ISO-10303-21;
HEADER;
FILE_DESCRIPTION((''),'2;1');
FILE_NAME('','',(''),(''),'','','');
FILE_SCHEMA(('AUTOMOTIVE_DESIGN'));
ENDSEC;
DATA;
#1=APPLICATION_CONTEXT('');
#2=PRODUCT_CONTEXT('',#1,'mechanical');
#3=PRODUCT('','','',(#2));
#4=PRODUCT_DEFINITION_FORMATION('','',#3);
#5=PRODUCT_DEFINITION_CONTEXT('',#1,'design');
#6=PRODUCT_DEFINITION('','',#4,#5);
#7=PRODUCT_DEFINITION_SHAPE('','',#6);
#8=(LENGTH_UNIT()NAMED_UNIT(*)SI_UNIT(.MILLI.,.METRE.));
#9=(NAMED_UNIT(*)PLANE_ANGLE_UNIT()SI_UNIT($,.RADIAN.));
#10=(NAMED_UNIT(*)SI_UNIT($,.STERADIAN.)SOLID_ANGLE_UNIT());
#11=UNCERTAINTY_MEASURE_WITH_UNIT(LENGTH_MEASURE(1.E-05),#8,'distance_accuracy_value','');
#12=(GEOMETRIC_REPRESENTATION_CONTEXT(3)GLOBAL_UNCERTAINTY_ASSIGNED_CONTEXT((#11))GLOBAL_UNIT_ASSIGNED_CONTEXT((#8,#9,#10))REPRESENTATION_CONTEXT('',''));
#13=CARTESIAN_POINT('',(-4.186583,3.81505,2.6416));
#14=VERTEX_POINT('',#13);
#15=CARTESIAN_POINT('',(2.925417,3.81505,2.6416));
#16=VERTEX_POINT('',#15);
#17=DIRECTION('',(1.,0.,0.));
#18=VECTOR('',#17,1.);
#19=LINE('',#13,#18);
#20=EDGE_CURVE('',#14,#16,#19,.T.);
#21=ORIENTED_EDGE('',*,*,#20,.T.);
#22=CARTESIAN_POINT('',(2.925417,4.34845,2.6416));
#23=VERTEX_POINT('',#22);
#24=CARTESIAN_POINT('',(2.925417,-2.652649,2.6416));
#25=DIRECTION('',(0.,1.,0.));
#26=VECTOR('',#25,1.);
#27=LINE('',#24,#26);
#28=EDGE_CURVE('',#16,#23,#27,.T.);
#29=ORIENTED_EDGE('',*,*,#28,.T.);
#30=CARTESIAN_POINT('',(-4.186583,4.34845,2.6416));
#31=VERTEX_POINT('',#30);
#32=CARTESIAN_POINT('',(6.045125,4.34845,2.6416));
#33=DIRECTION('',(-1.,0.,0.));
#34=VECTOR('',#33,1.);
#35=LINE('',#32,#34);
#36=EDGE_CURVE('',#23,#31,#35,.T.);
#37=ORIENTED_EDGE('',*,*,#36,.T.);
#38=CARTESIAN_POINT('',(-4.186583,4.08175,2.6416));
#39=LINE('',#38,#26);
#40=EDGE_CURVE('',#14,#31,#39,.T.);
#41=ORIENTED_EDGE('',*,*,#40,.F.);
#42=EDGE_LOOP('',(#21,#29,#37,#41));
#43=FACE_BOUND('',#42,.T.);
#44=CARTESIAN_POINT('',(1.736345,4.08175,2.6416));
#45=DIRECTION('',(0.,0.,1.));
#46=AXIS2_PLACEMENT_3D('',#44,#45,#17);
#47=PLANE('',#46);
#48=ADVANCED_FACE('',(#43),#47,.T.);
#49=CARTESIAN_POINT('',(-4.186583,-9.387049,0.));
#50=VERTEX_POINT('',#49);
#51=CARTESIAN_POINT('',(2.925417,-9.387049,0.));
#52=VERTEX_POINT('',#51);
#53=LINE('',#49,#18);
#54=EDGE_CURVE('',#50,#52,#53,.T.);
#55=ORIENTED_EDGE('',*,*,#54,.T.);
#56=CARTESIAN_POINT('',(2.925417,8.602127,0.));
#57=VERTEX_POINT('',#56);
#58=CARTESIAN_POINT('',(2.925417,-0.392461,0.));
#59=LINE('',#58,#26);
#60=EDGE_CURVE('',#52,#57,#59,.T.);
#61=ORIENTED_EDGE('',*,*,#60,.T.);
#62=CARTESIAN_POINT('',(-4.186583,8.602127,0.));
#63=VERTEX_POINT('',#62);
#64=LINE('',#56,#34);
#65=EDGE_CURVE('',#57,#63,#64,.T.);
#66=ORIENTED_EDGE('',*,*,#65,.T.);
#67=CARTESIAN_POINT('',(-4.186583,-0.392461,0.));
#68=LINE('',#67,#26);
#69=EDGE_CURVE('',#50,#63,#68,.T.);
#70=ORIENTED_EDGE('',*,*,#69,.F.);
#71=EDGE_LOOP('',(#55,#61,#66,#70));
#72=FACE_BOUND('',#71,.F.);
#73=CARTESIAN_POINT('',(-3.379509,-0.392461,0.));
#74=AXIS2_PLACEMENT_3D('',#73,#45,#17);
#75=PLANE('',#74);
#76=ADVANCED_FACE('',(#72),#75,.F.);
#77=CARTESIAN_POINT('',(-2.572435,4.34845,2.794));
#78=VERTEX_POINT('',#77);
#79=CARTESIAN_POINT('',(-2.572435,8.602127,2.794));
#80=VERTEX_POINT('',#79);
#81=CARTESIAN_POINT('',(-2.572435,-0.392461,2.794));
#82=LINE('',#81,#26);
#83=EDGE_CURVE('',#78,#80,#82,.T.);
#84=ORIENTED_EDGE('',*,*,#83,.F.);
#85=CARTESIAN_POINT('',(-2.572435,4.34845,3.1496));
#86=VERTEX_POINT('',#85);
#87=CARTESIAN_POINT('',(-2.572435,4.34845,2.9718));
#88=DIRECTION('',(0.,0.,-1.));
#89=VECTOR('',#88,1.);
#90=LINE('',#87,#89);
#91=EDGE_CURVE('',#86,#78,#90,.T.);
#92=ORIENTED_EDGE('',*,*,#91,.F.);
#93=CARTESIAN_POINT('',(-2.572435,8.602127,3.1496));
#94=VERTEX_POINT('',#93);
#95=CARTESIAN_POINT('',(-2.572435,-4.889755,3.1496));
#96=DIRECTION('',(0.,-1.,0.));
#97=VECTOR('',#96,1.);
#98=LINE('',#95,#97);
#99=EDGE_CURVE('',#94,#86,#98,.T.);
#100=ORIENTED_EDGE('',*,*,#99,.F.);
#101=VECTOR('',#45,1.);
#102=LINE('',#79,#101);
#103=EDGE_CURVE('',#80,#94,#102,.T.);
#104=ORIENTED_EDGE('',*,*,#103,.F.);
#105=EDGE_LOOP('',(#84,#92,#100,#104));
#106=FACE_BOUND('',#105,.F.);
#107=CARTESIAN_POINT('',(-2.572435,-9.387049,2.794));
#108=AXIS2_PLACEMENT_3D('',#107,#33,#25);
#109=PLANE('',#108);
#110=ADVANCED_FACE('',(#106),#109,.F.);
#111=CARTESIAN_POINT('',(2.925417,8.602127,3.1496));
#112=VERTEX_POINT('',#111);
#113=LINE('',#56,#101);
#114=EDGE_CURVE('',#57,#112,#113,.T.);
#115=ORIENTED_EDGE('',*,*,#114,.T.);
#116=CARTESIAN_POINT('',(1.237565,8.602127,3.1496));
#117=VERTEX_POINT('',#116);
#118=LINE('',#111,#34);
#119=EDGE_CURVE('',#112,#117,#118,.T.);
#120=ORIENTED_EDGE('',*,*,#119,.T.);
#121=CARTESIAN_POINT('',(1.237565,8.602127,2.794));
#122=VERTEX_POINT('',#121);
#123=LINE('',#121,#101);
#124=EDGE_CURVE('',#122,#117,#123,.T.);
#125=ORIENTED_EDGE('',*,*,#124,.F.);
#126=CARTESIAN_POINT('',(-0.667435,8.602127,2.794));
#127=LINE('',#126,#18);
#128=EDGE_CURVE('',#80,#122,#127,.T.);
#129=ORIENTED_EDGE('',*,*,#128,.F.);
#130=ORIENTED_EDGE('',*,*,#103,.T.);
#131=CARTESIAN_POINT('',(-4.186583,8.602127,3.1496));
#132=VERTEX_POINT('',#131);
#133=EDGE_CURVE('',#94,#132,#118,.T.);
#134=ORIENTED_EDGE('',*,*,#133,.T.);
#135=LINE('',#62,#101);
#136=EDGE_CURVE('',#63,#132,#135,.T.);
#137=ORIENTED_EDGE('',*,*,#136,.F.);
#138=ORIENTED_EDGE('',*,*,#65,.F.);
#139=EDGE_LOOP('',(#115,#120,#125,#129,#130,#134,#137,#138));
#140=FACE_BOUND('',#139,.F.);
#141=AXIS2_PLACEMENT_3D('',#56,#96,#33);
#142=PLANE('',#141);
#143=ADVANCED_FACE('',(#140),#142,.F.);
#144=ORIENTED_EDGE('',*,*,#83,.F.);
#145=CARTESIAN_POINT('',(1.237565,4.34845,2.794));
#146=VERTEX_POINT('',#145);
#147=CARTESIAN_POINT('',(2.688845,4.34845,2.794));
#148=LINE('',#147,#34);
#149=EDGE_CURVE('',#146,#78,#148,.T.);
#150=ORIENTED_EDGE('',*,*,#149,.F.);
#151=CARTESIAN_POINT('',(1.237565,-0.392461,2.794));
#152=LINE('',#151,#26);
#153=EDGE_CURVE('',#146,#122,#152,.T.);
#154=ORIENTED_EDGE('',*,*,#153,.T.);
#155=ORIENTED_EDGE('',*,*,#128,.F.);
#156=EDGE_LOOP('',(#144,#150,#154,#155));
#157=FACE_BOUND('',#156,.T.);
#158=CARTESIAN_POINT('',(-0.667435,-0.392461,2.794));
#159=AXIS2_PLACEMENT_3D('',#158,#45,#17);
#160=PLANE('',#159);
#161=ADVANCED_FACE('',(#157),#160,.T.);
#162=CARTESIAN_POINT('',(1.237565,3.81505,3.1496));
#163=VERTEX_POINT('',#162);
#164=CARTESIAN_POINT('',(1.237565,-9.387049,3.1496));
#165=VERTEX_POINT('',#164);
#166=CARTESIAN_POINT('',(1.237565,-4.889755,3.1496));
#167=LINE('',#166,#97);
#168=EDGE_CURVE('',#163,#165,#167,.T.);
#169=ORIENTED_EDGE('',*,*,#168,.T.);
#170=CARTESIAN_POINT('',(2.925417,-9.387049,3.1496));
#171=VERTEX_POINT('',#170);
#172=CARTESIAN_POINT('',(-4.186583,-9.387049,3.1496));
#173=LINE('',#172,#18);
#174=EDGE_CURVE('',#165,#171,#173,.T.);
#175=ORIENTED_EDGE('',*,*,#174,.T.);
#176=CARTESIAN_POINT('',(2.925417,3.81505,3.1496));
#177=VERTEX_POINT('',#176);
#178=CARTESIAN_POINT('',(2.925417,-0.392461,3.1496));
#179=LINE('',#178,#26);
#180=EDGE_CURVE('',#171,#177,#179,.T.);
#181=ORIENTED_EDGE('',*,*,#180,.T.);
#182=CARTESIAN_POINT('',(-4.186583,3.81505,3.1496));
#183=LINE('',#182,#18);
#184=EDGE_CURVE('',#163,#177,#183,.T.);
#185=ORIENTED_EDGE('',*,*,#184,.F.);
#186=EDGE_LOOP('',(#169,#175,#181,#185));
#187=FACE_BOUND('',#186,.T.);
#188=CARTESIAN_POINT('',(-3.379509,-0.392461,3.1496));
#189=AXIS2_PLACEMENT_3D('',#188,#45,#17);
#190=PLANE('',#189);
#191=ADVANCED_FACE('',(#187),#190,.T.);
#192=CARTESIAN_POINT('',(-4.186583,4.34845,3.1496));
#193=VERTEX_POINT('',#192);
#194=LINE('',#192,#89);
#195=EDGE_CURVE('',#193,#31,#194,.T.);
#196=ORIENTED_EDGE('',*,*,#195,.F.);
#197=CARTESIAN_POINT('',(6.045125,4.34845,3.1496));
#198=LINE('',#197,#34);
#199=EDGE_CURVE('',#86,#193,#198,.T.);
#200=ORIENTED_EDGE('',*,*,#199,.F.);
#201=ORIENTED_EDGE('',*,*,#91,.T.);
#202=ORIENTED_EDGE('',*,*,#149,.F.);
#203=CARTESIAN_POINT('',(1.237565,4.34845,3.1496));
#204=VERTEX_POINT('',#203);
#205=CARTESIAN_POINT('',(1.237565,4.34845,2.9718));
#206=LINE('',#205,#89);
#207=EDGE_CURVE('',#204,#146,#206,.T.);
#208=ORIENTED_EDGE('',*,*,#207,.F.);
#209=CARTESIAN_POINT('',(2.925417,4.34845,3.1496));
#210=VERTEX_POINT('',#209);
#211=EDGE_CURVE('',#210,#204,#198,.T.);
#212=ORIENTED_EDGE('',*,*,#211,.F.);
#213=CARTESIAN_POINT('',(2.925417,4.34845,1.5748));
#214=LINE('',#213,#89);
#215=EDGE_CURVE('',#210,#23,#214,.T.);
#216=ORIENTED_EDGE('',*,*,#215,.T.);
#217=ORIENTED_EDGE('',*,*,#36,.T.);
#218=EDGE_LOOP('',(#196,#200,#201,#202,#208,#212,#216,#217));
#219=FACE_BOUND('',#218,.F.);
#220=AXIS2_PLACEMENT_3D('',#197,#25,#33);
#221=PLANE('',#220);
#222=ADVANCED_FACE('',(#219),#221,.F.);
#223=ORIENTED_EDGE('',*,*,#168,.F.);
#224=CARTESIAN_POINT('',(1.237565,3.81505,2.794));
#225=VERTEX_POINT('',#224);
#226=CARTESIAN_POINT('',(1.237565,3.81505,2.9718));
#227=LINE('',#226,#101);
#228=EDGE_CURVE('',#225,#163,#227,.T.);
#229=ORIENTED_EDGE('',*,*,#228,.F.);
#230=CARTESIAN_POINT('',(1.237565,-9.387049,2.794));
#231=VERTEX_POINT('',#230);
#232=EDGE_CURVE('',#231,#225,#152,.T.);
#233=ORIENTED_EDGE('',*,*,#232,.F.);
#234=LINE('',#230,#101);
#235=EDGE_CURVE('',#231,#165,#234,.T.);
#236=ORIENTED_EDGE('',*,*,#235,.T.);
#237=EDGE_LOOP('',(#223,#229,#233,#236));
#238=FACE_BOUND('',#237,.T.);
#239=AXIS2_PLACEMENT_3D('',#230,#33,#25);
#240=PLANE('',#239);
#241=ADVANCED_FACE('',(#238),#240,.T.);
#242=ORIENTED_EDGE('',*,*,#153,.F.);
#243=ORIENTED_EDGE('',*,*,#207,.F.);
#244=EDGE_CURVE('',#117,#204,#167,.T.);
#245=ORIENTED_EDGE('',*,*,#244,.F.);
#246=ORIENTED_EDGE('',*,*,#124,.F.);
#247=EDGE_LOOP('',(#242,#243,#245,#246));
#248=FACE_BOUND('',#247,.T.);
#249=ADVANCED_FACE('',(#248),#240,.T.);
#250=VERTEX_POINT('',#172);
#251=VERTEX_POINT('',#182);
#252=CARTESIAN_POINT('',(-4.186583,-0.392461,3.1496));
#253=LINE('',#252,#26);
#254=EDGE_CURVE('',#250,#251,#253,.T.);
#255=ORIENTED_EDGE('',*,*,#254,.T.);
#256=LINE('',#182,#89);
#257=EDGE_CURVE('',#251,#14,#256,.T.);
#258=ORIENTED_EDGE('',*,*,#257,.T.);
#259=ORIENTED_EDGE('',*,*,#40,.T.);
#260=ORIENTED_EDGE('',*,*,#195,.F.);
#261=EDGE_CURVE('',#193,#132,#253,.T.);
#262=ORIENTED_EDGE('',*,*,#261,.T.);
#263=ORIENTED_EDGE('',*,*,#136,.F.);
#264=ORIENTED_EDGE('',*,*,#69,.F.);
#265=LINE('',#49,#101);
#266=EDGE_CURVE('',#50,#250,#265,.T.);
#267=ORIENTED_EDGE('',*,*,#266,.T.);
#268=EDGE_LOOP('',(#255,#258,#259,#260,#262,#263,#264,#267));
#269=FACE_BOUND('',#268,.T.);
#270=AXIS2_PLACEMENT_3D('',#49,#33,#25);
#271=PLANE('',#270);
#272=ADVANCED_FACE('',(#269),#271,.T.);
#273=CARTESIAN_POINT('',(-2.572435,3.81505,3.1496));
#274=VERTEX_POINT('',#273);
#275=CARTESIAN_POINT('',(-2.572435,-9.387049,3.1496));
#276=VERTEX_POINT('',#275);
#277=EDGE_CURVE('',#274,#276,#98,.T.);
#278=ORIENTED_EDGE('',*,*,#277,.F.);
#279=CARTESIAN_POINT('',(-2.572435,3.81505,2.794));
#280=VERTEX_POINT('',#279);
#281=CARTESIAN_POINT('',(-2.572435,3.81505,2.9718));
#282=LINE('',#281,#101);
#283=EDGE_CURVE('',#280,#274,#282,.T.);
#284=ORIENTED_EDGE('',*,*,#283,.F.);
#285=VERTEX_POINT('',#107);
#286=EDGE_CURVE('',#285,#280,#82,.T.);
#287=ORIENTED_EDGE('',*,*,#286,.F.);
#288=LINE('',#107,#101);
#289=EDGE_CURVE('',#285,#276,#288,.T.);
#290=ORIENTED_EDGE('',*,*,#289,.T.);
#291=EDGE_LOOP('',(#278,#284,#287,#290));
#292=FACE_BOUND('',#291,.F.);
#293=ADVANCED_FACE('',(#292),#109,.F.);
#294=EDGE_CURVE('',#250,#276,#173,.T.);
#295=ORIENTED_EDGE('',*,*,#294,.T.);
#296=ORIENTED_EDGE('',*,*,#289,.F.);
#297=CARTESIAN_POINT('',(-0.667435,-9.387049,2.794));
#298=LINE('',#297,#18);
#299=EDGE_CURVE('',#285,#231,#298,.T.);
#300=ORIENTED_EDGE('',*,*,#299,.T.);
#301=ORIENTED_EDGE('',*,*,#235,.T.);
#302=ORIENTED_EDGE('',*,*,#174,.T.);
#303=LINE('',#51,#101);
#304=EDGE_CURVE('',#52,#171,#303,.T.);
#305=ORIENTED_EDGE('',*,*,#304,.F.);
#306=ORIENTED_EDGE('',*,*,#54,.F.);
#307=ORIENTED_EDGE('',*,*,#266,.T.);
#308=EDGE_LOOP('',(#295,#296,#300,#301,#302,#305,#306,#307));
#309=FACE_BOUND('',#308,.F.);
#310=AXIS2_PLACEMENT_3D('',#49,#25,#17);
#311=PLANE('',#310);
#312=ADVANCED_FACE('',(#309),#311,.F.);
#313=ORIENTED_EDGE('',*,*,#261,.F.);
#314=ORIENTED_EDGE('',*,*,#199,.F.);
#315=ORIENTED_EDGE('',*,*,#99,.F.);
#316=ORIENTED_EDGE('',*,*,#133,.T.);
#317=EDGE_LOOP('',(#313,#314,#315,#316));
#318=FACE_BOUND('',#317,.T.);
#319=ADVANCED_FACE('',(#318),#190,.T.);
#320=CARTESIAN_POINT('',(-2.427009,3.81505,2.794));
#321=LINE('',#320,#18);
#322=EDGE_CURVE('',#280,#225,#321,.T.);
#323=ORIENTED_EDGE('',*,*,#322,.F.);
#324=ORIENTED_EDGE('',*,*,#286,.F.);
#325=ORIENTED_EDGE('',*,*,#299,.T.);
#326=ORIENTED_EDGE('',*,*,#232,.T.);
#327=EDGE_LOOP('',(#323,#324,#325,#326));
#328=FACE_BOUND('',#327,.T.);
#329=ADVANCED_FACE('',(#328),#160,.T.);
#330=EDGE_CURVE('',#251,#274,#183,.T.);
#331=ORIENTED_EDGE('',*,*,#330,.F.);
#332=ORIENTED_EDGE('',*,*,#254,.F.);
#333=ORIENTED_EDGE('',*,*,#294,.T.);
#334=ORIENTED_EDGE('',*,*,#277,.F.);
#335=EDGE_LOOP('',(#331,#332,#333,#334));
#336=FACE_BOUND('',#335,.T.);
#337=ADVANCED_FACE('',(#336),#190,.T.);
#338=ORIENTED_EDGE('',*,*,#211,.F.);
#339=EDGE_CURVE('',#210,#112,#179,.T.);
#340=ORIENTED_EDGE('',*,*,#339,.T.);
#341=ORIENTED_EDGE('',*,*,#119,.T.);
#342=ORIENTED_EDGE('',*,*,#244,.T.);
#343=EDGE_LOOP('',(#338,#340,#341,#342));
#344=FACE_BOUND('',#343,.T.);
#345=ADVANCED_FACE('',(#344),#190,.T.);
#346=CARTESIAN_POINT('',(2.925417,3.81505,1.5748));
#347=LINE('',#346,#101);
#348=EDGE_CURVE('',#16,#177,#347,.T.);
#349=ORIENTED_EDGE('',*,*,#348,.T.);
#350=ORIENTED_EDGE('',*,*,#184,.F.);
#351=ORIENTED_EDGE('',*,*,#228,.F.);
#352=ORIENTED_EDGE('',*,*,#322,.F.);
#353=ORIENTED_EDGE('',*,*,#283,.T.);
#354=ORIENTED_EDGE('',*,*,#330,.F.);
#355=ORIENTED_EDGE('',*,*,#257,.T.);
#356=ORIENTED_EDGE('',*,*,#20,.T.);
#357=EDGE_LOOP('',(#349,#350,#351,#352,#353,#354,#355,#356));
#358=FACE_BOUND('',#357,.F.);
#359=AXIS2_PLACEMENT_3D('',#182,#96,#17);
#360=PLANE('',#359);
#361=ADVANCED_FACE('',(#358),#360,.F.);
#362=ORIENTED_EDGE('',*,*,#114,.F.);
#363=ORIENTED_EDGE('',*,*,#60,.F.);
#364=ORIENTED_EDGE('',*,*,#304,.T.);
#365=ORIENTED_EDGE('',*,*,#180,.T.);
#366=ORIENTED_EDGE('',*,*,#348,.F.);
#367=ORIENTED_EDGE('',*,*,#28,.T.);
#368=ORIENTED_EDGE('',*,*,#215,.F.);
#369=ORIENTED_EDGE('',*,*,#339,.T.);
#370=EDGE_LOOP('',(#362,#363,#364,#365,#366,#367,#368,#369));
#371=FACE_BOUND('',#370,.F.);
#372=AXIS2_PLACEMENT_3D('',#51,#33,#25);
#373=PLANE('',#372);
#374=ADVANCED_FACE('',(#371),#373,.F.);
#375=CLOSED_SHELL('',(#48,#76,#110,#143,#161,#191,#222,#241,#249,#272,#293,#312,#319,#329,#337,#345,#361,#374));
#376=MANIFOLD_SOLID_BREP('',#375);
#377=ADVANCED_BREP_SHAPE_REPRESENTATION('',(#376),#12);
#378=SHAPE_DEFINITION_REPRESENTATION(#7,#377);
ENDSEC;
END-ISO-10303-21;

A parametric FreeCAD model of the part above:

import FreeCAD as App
import Part
import Sketcher
from FreeCAD import Vector
Q = App.Units.Quantity


def add_polygon(sketch, points):
    """Adds a closed chain of lines whose ends are joined by coincident constraints."""
    first, n = sketch.GeometryCount, len(points)
    for a, b in zip(points, points[1:] + points[:1]):
        sketch.addGeometry(Part.LineSegment(App.Vector(*a, 0), App.Vector(*b, 0)), False)
    for i in range(n):
        sketch.addConstraint(Sketcher.Constraint("Coincident", first + i, 2, first + (i + 1) % n, 1))

doc = App.newDocument("Part")
body = doc.addObject("PartDesign::Body", "Body")

sketch1 = body.newObject("Sketcher::SketchObject", "Sketch")
sketch1.AttachmentSupport = (doc.getObject("XY_Plane"), [""])
sketch1.MapMode = "FlatFace"
add_polygon(sketch1, [(-4, 9), (-4, -9), (3, -9), (3, 9)])
sketch1.addConstraint(Sketcher.Constraint("Vertical", 0))
sketch1.addConstraint(Sketcher.Constraint("Horizontal", 1))
sketch1.addConstraint(Sketcher.Constraint("Vertical", 2))
sketch1.addConstraint(Sketcher.Constraint("Horizontal", 3))
sketch1.addConstraint(Sketcher.Constraint("DistanceX", 1, 1, 1, 2, Q("0.28 in")))
sketch1.addConstraint(Sketcher.Constraint("DistanceY", 0, 2, 0, 1, 17.989176))
sketch1.addConstraint(Sketcher.Constraint("DistanceY", 0, 2, -1, 1, 9.387049))
sketch1.addConstraint(Sketcher.Constraint("DistanceX", 0, 2, -1, 1, 4.186583))
pad1 = body.newObject("PartDesign::Pad", "Pad")
pad1.Profile = sketch1
pad1.Length = Q("0.124 in")

sketch2 = body.newObject("Sketcher::SketchObject", "Sketch001")
sketch2.AttachmentSupport = (doc.getObject("XY_Plane"), [""])
sketch2.MapMode = "FlatFace"
sketch2.AttachmentOffset = App.Placement(Vector(0, 0, 0.11 * 25.4), App.Rotation())
add_polygon(sketch2, [(-2.6, 8.6), (-2.6, -9.4), (1.2, -9.4), (1.2, 8.6)])
sketch2.addConstraint(Sketcher.Constraint("Vertical", 0))
sketch2.addConstraint(Sketcher.Constraint("Horizontal", 1))
sketch2.addConstraint(Sketcher.Constraint("Vertical", 2))
sketch2.addConstraint(Sketcher.Constraint("Horizontal", 3))
sketch2.addConstraint(Sketcher.Constraint("DistanceX", 1, 1, 1, 2, Q("0.15 in")))
sketch2.addConstraint(Sketcher.Constraint("DistanceY", 0, 2, 0, 1, 17.989176))
sketch2.addConstraint(Sketcher.Constraint("DistanceY", 0, 2, -1, 1, 9.387049))
sketch2.addConstraint(Sketcher.Constraint("DistanceX", 0, 2, -1, 1, 2.572435))
pocket1 = body.newObject("PartDesign::Pocket", "Pocket")
pocket1.Profile = sketch2
pocket1.Length = Q("0.082 in")
pocket1.Reversed = True

sketch3 = body.newObject("Sketcher::SketchObject", "Sketch002")
sketch3.AttachmentSupport = (doc.getObject("XY_Plane"), [""])
sketch3.MapMode = "FlatFace"
sketch3.AttachmentOffset = App.Placement(Vector(0, 0, 0.124 * 25.4), App.Rotation())
add_polygon(sketch3, [(6, 3.8), (6, 4.3), (-4.2, 4.3), (-4.2, 3.8)])
sketch3.addConstraint(Sketcher.Constraint("Vertical", 0))
sketch3.addConstraint(Sketcher.Constraint("Horizontal", 1))
sketch3.addConstraint(Sketcher.Constraint("Vertical", 2))
sketch3.addConstraint(Sketcher.Constraint("Horizontal", 3))
sketch3.addConstraint(Sketcher.Constraint("DistanceY", 0, 1, 0, 2, Q("0.021 in")))
sketch3.addConstraint(Sketcher.Constraint("DistanceX", 1, 2, 1, 1, 10.231708))
sketch3.addConstraint(Sketcher.Constraint("DistanceY", -1, 1, 0, 2, 4.34845))
sketch3.addConstraint(Sketcher.Constraint("DistanceX", -1, 1, 0, 2, 6.045125))
pocket2 = body.newObject("PartDesign::Pocket", "Pocket001")
pocket2.Profile = sketch3
pocket2.Length = Q("0.02 in")

doc.recompute()
